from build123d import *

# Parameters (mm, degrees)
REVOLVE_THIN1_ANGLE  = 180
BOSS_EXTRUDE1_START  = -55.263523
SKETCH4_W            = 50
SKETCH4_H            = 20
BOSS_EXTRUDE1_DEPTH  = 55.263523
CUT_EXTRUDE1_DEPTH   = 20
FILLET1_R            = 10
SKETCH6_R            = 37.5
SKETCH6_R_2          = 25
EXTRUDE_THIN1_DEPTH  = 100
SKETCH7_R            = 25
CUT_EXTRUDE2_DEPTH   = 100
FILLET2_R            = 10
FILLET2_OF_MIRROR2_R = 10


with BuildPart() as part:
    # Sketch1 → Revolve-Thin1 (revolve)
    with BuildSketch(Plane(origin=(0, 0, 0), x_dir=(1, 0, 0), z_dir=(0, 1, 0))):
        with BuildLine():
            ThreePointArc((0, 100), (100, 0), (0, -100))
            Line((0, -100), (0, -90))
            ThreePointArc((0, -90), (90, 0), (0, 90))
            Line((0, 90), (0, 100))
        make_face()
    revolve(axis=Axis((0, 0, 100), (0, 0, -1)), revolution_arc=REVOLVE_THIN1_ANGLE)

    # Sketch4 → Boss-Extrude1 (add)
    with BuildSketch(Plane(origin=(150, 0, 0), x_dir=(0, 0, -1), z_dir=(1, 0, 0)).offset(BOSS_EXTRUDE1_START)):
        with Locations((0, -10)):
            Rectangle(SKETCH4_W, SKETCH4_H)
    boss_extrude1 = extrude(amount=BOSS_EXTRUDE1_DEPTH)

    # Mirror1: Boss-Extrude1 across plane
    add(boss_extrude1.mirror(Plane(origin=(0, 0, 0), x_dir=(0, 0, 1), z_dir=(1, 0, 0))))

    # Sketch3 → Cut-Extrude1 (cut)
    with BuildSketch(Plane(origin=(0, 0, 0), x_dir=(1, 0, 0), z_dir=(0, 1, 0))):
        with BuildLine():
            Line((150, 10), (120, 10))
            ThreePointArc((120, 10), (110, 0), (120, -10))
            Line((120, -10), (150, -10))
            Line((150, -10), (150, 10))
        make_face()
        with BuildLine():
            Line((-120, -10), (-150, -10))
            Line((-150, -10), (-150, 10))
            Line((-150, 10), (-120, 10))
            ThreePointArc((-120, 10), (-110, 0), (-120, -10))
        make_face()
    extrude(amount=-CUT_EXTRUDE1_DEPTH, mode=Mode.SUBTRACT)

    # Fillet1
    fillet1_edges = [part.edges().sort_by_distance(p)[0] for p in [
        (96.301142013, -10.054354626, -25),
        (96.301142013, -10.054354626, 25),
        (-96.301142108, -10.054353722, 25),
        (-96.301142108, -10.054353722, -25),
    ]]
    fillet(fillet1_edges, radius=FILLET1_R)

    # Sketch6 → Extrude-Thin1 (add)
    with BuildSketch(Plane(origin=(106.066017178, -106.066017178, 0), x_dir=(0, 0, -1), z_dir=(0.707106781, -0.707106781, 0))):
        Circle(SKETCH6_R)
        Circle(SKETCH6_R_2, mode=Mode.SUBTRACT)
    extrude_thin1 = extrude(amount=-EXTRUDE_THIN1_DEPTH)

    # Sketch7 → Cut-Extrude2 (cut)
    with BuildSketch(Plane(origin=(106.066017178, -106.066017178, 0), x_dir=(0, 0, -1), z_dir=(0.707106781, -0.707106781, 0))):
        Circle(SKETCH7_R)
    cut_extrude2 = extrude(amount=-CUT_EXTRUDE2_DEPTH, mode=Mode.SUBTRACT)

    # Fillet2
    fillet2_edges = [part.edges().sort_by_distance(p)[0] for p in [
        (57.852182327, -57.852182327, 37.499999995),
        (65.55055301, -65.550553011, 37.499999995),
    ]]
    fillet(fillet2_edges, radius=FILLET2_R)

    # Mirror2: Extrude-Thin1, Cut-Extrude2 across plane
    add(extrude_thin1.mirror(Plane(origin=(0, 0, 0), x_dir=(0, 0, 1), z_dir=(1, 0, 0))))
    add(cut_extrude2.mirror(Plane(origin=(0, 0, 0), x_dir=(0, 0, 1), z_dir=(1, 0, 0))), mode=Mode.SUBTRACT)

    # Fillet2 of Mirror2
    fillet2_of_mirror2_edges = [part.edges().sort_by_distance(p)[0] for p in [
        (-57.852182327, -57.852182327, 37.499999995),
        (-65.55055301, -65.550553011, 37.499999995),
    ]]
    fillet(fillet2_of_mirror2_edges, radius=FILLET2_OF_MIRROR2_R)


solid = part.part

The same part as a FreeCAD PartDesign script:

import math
import FreeCAD as App
import Part
import Sketcher


def edges_at(feature, points):
    """Names of the edges that pass closest to the given points."""
    edges = feature.Shape.Edges
    near = lambda p: min(range(len(edges)), key=lambda i: edges[i].distToShape(Part.Vertex(*p))[0])
    return sorted({f"Edge{near(p) + 1}" for p in points})

doc = App.newDocument("Part")
params = doc.addObject("Spreadsheet::Sheet", "Params")
for row, (alias, value) in enumerate([
    ("sketch1_radius", "100 mm"),
    ("sketch1_radius2", "90 mm"),
    ("revolution_angle", "180 deg"),
    ("sketch2_width", "20 mm"),
    ("sketch2_height", "50 mm"),
    ("pad1_length", "55.263523 mm"),
    ("sketch3_radius", "10 mm"),
    ("sketch3_width", "30 mm"),
    ("pocket1_length", "20 mm"),
    ("fillet_radius", "10 mm"),
    ("sketch4_diameter", "75 mm"),
    ("sketch4_diameter2", "50 mm"),
    ("pad2_length", "100 mm"),
    ("sketch5_diameter", "50 mm"),
    ("pocket2_length", "100 mm"),
    ("fillet2_radius", "10 mm"),
    ("fillet3_radius", "10 mm"),
], start=1):
    params.set(f"A{row}", alias)
    params.set(f"B{row}", "=" + value)
    params.setAlias(f"B{row}", alias)

body = doc.addObject("PartDesign::Body", "Body")

# Sketch on XZ plane
sketch1 = doc.addObject("Sketcher::SketchObject", "Sketch")
body.addObject(sketch1)
sketch1.AttachmentSupport = (doc.XZ_Plane, [""])
sketch1.MapMode = "FlatFace"
sketch1.addGeometry(Part.ArcOfCircle(Part.Circle(App.Vector(0, 0, 0), App.Vector(0, 0, 1), 100), math.radians(-90), math.radians(90)), False)
sketch1.addGeometry(Part.LineSegment(App.Vector(0, -100, 0), App.Vector(0, -90, 0)), False)
sketch1.addGeometry(Part.ArcOfCircle(Part.Circle(App.Vector(0, 0, 0), App.Vector(0, 0, 1), 90), math.radians(-90), math.radians(90)), False)
sketch1.addGeometry(Part.LineSegment(App.Vector(0, 90, 0), App.Vector(0, 100, 0)), False)
sketch1.addConstraint(Sketcher.Constraint("Coincident", 0, 1, 1, 1))
sketch1.addConstraint(Sketcher.Constraint("Coincident", 1, 2, 2, 1))
sketch1.addConstraint(Sketcher.Constraint("Coincident", 2, 2, 3, 1))
sketch1.addConstraint(Sketcher.Constraint("Coincident", 3, 2, 0, 2))
sketch1.addConstraint(Sketcher.Constraint("Vertical", 1))
sketch1.addConstraint(Sketcher.Constraint("Vertical", 3))
sketch1.addConstraint(Sketcher.Constraint("Coincident", 0, 3, -1, 1))
sketch1.addConstraint(Sketcher.Constraint("Coincident", 2, 3, -1, 1))
sketch1.addConstraint(Sketcher.Constraint("PointOnObject", 0, 1, -2))
sketch1.addConstraint(Sketcher.Constraint("PointOnObject", 2, 2, -2))
sketch1.addConstraint(Sketcher.Constraint("Radius", 0, 100.0))
sketch1.addConstraint(Sketcher.Constraint("Radius", 2, 90.0))
sketch1.setExpression("Constraints[10]", "Params.sketch1_radius")
sketch1.setExpression("Constraints[11]", "Params.sketch1_radius2")
revolution = doc.addObject("PartDesign::Revolution", "Revolution")
body.addObject(revolution)
revolution.Profile = sketch1
revolution.ReferenceAxis = (sketch1, ["V_Axis"])
revolution.setExpression("Angle", "Params.revolution_angle")
revolution.Reversed = True

# Sketch on YZ plane
sketch2 = doc.addObject("Sketcher::SketchObject", "Sketch001")
body.addObject(sketch2)
sketch2.AttachmentSupport = (doc.YZ_Plane, [""])
sketch2.MapMode = "FlatFace"
sketch2.AttachmentOffset = App.Placement(App.Vector(0, 0, 94.736477), App.Rotation())
sketch2.addGeometry(Part.LineSegment(App.Vector(0, 25, 0), App.Vector(-20, 25, 0)), False)
sketch2.addGeometry(Part.LineSegment(App.Vector(-20, 25, 0), App.Vector(-20, -25, 0)), False)
sketch2.addGeometry(Part.LineSegment(App.Vector(-20, -25, 0), App.Vector(0, -25, 0)), False)
sketch2.addGeometry(Part.LineSegment(App.Vector(0, -25, 0), App.Vector(0, 25, 0)), False)
sketch2.addConstraint(Sketcher.Constraint("Coincident", 0, 2, 1, 1))
sketch2.addConstraint(Sketcher.Constraint("Coincident", 1, 2, 2, 1))
sketch2.addConstraint(Sketcher.Constraint("Coincident", 2, 2, 3, 1))
sketch2.addConstraint(Sketcher.Constraint("Coincident", 3, 2, 0, 1))
sketch2.addConstraint(Sketcher.Constraint("Horizontal", 0))
sketch2.addConstraint(Sketcher.Constraint("Vertical", 1))
sketch2.addConstraint(Sketcher.Constraint("Horizontal", 2))
sketch2.addConstraint(Sketcher.Constraint("Vertical", 3))
sketch2.addConstraint(Sketcher.Constraint("Symmetric", 2, 2, 3, 2, -1, 1))
sketch2.addConstraint(Sketcher.Constraint("DistanceX", 0, 2, 0, 1, 20.0))
sketch2.addConstraint(Sketcher.Constraint("DistanceY", 1, 2, 1, 1, 50.0))
sketch2.setExpression("Constraints[9]", "Params.sketch2_width")
sketch2.setExpression("Constraints[10]", "Params.sketch2_height")
pad1 = doc.addObject("PartDesign::Pad", "Pad")
body.addObject(pad1)
pad1.Profile = sketch2
pad1.setExpression("Length", "Params.pad1_length")
doc.recompute()

mirrored = doc.addObject("PartDesign::Mirrored", "Mirrored")
body.addObject(mirrored)
mirrored.Originals = [pad1]
mirrored.MirrorPlane = (doc.YZ_Plane, [""])
body.Tip = mirrored

# Sketch on XZ plane
sketch3 = doc.addObject("Sketcher::SketchObject", "Sketch002")
body.addObject(sketch3)
sketch3.AttachmentSupport = (doc.XZ_Plane, [""])
sketch3.MapMode = "FlatFace"
sketch3.addGeometry(Part.LineSegment(App.Vector(150, -10, 0), App.Vector(120, -10, 0)), False)
sketch3.addGeometry(Part.ArcOfCircle(Part.Circle(App.Vector(120, 0, 0), App.Vector(0, 0, 1), 10), math.radians(90), math.radians(270)), False)
sketch3.addGeometry(Part.LineSegment(App.Vector(120, 10, 0), App.Vector(150, 10, 0)), False)
sketch3.addGeometry(Part.LineSegment(App.Vector(150, 10, 0), App.Vector(150, -10, 0)), False)
sketch3.addGeometry(Part.LineSegment(App.Vector(-150, 10, 0), App.Vector(-120, 10, 0)), False)
sketch3.addGeometry(Part.ArcOfCircle(Part.Circle(App.Vector(-120, 0, 0), App.Vector(0, 0, 1), 10), math.radians(-90), math.radians(90)), False)
sketch3.addGeometry(Part.LineSegment(App.Vector(-120, -10, 0), App.Vector(-150, -10, 0)), False)
sketch3.addGeometry(Part.LineSegment(App.Vector(-150, -10, 0), App.Vector(-150, 10, 0)), False)
sketch3.addConstraint(Sketcher.Constraint("Tangent", 0, 2, 1, 2))
sketch3.addConstraint(Sketcher.Constraint("Tangent", 1, 1, 2, 1))
sketch3.addConstraint(Sketcher.Constraint("Coincident", 2, 2, 3, 1))
sketch3.addConstraint(Sketcher.Constraint("Coincident", 3, 2, 0, 1))
sketch3.addConstraint(Sketcher.Constraint("Tangent", 4, 2, 5, 2))
sketch3.addConstraint(Sketcher.Constraint("Tangent", 5, 1, 6, 1))
sketch3.addConstraint(Sketcher.Constraint("Coincident", 6, 2, 7, 1))
sketch3.addConstraint(Sketcher.Constraint("Coincident", 7, 2, 4, 1))
sketch3.addConstraint(Sketcher.Constraint("Horizontal", 0))
sketch3.addConstraint(Sketcher.Constraint("Horizontal", 2))
sketch3.addConstraint(Sketcher.Constraint("Vertical", 3))
sketch3.addConstraint(Sketcher.Constraint("Horizontal", 4))
sketch3.addConstraint(Sketcher.Constraint("Horizontal", 6))
sketch3.addConstraint(Sketcher.Constraint("Vertical", 7))
sketch3.addConstraint(Sketcher.Constraint("Equal", 1, 5))
sketch3.addConstraint(Sketcher.Constraint("Symmetric", 1, 3, 5, 3, -1, 1))
sketch3.addConstraint(Sketcher.Constraint("Symmetric", 3, 2, 6, 2, -2))
sketch3.addConstraint(Sketcher.Constraint("Radius", 1, 10.0))
sketch3.addConstraint(Sketcher.Constraint("DistanceX", 0, 2, 0, 1, 30.0))
sketch3.addConstraint(Sketcher.Constraint("DistanceX", -1, 1, 1, 3, 120.0))
sketch3.setExpression("Constraints[17]", "Params.sketch3_radius")
sketch3.setExpression("Constraints[18]", "Params.sketch3_width")
pocket1 = doc.addObject("PartDesign::Pocket", "Pocket")
body.addObject(pocket1)
pocket1.Profile = sketch3
pocket1.setExpression("Length", "Params.pocket1_length")
pocket1.Reversed = True
doc.recompute()

fillet = doc.addObject("PartDesign::Fillet", "Fillet")
body.addObject(fillet)
fillet.Base = (pocket1, edges_at(pocket1, [
    (96.301, -10.054, -25),
    (96.301, -10.054, 25),
    (-96.301, -10.054, 25),
    (-96.301, -10.054, -25),
]))
fillet.setExpression("Radius", "Params.fillet_radius")

# Sketch on an angled plane
sketch4 = doc.addObject("Sketcher::SketchObject", "Sketch003")
body.addObject(sketch4)
sketch4.Placement = App.Placement(App.Vector(106.066017, -106.066017, 0), App.Rotation(App.Vector(0, 0, -1), App.Vector(0.707106781, 0.707106781, 0), App.Vector(0.707106781, -0.707106781, 0), "ZXY"))
sketch4.addGeometry(Part.Circle(App.Vector(0, 0, 0), App.Vector(0, 0, 1), 38), False)
sketch4.addGeometry(Part.Circle(App.Vector(0, 0, 0), App.Vector(0, 0, 1), 25), False)
sketch4.addConstraint(Sketcher.Constraint("Coincident", 0, 3, -1, 1))
sketch4.addConstraint(Sketcher.Constraint("Coincident", 1, 3, -1, 1))
sketch4.addConstraint(Sketcher.Constraint("Diameter", 0, 75.0))
sketch4.addConstraint(Sketcher.Constraint("Diameter", 1, 50.0))
sketch4.setExpression("Constraints[2]", "Params.sketch4_diameter")
sketch4.setExpression("Constraints[3]", "Params.sketch4_diameter2")
pad2 = doc.addObject("PartDesign::Pad", "Pad001")
body.addObject(pad2)
pad2.Profile = sketch4
pad2.setExpression("Length", "Params.pad2_length")
pad2.Reversed = True

# Sketch on an angled plane
sketch5 = doc.addObject("Sketcher::SketchObject", "Sketch004")
body.addObject(sketch5)
sketch5.Placement = App.Placement(App.Vector(106.066017, -106.066017, 0), App.Rotation(App.Vector(0, 0, -1), App.Vector(0.707106781, 0.707106781, 0), App.Vector(0.707106781, -0.707106781, 0), "ZXY"))
sketch5.addGeometry(Part.Circle(App.Vector(0, 0, 0), App.Vector(0, 0, 1), 25), False)
sketch5.addConstraint(Sketcher.Constraint("Coincident", 0, 3, -1, 1))
sketch5.addConstraint(Sketcher.Constraint("Diameter", 0, 50.0))
sketch5.setExpression("Constraints[1]", "Params.sketch5_diameter")
pocket2 = doc.addObject("PartDesign::Pocket", "Pocket001")
body.addObject(pocket2)
pocket2.Profile = sketch5
pocket2.setExpression("Length", "Params.pocket2_length")
doc.recompute()

fillet2 = doc.addObject("PartDesign::Fillet", "Fillet001")
body.addObject(fillet2)
fillet2.Base = (pocket2, edges_at(pocket2, [(57.852, -57.852, 37.5), (65.551, -65.551, 37.5)]))
fillet2.setExpression("Radius", "Params.fillet2_radius")
doc.recompute()

mirrored2 = doc.addObject("PartDesign::Mirrored", "Mirrored001")
body.addObject(mirrored2)
mirrored2.Originals = [pad2, pocket2]
mirrored2.MirrorPlane = (doc.YZ_Plane, [""])
body.Tip = mirrored2
doc.recompute()

fillet3 = doc.addObject("PartDesign::Fillet", "Fillet002")
body.addObject(fillet3)
fillet3.Base = (mirrored2, edges_at(mirrored2, [(-57.852, -57.852, 37.5), (-65.551, -65.551, 37.5)]))
fillet3.setExpression("Radius", "Params.fillet3_radius")

doc.recompute()
